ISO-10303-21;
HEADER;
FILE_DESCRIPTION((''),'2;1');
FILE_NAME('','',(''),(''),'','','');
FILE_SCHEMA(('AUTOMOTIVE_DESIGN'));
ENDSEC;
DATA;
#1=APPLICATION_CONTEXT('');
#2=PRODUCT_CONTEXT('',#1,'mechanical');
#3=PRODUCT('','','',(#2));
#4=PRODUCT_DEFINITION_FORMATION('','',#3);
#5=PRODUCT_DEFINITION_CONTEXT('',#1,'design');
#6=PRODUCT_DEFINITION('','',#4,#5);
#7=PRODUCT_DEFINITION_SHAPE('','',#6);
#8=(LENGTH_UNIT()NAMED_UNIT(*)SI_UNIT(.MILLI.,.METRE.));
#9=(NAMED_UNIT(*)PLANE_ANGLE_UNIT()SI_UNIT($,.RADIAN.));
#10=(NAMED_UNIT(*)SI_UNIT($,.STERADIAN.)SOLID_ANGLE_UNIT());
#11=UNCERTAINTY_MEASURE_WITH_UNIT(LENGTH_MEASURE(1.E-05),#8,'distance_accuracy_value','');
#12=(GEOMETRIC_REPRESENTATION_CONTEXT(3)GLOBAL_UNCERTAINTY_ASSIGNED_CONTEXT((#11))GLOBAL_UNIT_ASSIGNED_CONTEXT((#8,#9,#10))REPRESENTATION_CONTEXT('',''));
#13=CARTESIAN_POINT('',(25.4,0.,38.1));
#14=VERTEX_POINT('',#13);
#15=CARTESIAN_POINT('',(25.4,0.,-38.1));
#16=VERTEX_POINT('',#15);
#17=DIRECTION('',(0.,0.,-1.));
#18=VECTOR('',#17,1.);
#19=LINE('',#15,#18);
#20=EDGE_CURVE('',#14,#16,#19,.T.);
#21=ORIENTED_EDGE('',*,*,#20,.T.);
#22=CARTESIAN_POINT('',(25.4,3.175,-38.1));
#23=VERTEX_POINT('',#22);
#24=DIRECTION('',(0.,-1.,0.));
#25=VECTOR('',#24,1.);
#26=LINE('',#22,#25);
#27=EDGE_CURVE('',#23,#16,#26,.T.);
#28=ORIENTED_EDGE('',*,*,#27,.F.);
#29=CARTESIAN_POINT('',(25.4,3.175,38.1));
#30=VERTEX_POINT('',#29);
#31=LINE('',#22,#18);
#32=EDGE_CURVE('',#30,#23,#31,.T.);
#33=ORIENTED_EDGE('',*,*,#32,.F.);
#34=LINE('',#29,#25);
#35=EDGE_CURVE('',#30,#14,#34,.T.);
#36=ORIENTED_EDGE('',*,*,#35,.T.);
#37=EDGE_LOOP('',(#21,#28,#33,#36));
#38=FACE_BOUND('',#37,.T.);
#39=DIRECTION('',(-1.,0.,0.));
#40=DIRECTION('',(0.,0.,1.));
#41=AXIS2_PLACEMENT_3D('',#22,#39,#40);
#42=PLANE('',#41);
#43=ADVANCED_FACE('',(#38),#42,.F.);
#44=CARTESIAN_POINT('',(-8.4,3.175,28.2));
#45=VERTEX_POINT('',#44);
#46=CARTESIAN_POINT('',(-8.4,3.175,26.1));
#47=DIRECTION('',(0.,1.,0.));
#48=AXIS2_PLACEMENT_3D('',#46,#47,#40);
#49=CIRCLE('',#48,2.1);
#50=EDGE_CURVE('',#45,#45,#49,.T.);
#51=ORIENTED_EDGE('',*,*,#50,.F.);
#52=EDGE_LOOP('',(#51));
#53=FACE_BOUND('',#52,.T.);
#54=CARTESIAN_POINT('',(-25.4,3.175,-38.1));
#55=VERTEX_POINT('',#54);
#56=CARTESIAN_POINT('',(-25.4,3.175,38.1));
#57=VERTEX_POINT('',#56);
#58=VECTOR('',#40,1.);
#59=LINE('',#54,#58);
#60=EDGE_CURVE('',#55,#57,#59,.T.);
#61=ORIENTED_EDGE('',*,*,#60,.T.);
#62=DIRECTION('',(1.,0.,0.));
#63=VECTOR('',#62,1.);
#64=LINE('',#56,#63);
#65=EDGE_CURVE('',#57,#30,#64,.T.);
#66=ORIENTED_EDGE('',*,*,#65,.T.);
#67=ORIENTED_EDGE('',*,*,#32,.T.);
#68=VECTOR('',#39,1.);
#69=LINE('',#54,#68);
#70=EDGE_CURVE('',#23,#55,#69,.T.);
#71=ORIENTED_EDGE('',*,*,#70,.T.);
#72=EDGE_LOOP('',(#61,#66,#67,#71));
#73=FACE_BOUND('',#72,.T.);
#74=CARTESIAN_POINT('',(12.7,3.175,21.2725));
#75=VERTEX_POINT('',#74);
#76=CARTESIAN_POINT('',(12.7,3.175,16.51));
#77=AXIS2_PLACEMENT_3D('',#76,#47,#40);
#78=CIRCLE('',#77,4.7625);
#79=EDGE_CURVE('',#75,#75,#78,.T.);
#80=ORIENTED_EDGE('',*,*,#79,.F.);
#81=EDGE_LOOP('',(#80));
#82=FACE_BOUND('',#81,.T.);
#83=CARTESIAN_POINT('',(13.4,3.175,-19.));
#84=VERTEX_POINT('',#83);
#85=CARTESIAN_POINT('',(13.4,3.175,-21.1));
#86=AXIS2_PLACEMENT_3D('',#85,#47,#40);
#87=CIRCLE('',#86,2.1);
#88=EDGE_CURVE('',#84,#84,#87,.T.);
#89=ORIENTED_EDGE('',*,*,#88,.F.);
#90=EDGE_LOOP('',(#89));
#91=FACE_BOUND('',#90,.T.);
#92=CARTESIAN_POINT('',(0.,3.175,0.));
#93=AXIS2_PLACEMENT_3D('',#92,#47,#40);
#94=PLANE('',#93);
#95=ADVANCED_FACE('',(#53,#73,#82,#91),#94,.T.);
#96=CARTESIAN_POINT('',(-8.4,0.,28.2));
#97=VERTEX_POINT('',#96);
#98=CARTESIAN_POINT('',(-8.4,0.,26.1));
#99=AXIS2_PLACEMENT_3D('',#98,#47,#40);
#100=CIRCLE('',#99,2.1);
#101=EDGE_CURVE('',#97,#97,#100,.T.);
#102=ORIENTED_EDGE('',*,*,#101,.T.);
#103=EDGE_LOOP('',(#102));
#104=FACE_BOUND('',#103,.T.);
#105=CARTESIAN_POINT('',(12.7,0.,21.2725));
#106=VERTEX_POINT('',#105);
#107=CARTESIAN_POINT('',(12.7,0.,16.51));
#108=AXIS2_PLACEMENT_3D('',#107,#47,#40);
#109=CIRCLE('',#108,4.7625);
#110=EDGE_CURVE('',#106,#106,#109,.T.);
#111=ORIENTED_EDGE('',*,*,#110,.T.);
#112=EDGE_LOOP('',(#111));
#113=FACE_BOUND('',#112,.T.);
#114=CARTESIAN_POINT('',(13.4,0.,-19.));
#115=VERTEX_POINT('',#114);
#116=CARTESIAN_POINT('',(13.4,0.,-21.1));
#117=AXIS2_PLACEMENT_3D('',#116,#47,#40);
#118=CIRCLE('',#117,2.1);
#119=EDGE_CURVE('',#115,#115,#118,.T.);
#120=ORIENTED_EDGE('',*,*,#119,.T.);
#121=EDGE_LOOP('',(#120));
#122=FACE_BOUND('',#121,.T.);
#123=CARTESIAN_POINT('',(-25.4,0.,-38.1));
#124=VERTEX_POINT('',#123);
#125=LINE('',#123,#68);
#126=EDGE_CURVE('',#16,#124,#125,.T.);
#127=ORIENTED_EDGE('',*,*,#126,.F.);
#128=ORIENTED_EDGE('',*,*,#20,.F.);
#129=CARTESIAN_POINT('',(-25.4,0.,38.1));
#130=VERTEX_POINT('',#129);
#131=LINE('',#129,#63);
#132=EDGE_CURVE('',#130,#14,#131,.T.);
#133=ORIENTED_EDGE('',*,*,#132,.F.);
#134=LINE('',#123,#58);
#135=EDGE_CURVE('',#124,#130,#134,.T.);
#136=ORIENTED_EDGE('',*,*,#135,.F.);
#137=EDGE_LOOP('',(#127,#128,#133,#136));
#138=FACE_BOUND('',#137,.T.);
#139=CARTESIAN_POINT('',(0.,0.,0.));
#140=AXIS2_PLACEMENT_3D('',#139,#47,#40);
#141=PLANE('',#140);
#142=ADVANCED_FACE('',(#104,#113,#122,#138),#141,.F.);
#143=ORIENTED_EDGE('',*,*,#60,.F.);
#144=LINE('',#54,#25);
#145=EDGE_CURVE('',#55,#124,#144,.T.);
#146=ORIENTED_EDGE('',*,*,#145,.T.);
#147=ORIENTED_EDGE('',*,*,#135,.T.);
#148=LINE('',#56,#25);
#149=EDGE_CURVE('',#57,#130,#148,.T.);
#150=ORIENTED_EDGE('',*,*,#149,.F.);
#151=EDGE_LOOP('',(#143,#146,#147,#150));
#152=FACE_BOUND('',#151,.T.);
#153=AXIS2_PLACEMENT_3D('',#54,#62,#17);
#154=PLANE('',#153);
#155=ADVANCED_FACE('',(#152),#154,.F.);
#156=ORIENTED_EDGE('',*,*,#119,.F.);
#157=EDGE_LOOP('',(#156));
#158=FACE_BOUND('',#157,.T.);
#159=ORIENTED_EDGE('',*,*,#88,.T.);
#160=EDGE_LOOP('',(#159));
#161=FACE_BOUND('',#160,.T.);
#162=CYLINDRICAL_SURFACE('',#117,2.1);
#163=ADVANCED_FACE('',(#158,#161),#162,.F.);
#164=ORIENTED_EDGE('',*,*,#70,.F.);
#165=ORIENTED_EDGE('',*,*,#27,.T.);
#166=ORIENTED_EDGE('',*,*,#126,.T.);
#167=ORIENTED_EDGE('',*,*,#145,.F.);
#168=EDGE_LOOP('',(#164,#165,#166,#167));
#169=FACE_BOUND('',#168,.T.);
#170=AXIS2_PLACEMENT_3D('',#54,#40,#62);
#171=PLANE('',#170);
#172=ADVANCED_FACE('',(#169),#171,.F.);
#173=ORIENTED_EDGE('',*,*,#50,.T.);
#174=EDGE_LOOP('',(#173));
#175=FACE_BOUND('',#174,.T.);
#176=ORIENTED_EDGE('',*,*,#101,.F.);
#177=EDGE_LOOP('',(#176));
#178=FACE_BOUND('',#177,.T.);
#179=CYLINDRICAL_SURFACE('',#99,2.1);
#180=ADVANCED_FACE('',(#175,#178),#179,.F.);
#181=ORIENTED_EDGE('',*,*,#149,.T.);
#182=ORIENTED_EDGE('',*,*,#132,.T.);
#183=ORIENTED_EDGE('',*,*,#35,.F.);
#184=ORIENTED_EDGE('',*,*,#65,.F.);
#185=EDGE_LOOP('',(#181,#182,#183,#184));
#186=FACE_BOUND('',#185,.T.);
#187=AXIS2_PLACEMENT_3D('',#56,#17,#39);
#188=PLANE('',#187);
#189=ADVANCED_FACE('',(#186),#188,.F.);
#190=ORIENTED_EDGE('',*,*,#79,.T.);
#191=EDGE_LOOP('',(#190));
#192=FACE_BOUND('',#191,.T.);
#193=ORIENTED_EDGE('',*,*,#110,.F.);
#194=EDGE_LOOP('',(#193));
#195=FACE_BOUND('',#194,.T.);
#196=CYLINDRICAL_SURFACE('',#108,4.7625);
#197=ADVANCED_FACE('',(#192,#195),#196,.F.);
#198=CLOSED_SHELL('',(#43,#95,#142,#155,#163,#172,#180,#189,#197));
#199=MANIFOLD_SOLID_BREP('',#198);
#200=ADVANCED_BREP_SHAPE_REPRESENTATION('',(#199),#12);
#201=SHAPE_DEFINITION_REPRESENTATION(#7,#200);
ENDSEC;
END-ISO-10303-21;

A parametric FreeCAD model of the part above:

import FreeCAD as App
import Part
import Sketcher
from FreeCAD import Vector
Q = App.Units.Quantity

doc = App.newDocument("Part")
body = doc.addObject("PartDesign::Body", "Body")

# Sketch on XZ plane
sketch1 = doc.addObject("Sketcher::SketchObject", "Sketch")
body.addObject(sketch1)
sketch1.AttachmentSupport = (doc.XZ_Plane, [""])
sketch1.MapMode = "FlatFace"
sketch1.addGeometry([
    Part.LineSegment(Vector(-25, -38, 0), Vector(-25, 38, 0)),
    Part.LineSegment(Vector(-25, 38, 0), Vector(25, 38, 0)),
    Part.LineSegment(Vector(25, 38, 0), Vector(25, -38, 0)),
    Part.LineSegment(Vector(25, -38, 0), Vector(-25, -38, 0)),
], False)
sketch1.addConstraint([
    Sketcher.Constraint("Coincident", 0, 2, 1, 1),
    Sketcher.Constraint("Coincident", 1, 2, 2, 1),
    Sketcher.Constraint("Coincident", 2, 2, 3, 1),
    Sketcher.Constraint("Coincident", 3, 2, 0, 1),
    Sketcher.Constraint("Vertical", 0),
    Sketcher.Constraint("Horizontal", 1),
    Sketcher.Constraint("Vertical", 2),
    Sketcher.Constraint("Horizontal", 3),
    Sketcher.Constraint("Symmetric", 0, 2, 2, 2, -1, 1),
    Sketcher.Constraint("DistanceX", 1, 1, 1, 2, Q("2 in")),
    Sketcher.Constraint("DistanceY", 0, 1, 0, 2, Q("3 in")),
])
pad1 = doc.addObject("PartDesign::Pad", "Pad")
body.addObject(pad1)
pad1.Profile = sketch1
pad1.Length = Q("0.125 in")
pad1.Reversed = True

# Sketch on XZ plane
sketch2 = doc.addObject("Sketcher::SketchObject", "Sketch001")
body.addObject(sketch2)
sketch2.AttachmentSupport = (doc.XZ_Plane, [""])
sketch2.MapMode = "FlatFace"
sketch2.AttachmentOffset = App.Placement(Vector(0, 0, -0.125 * 25.4), App.Rotation())
sketch2.addGeometry(Part.Circle(Vector(12.7, 16.5, 0), Vector(0, 0, 1), 4.8), False)
sketch2.addConstraint([
    Sketcher.Constraint("Diameter", 0, Q("0.375 in")),
    Sketcher.Constraint("DistanceX", -1, 1, 0, 3, Q("0.5 in")),
    Sketcher.Constraint("DistanceY", -1, 1, 0, 3, Q("0.65 in")),
])
pocket1 = doc.addObject("PartDesign::Pocket", "Pocket")
body.addObject(pocket1)
pocket1.Profile = sketch2
pocket1.Type = "ThroughAll"
pocket1.Reversed = True

# Sketch on XZ plane
sketch3 = doc.addObject("Sketcher::SketchObject", "Sketch002")
body.addObject(sketch3)
sketch3.AttachmentSupport = (doc.XZ_Plane, [""])
sketch3.MapMode = "FlatFace"
sketch3.AttachmentOffset = App.Placement(Vector(0, 0, -0.125 * 25.4), App.Rotation())
sketch3.addGeometry([
    Part.Circle(Vector(13.4, -21.1, 0), Vector(0, 0, 1), 2.1),
    Part.Circle(Vector(-8.4, 26.1, 0), Vector(0, 0, 1), 2.1),
], False)
sketch3.addConstraint([
    Sketcher.Constraint("Equal", 0, 1),
    Sketcher.Constraint("Diameter", 0, 4.2),
    Sketcher.Constraint("DistanceX", -1, 1, 0, 3, 13.4),
    Sketcher.Constraint("DistanceY", 0, 3, -1, 1, 21.1),
    Sketcher.Constraint("DistanceX", 1, 3, -1, 1, 8.4),
    Sketcher.Constraint("DistanceY", -1, 1, 1, 3, 26.1),
])
pocket2 = doc.addObject("PartDesign::Pocket", "Pocket001")
body.addObject(pocket2)
pocket2.Profile = sketch3
pocket2.Type = "ThroughAll"
pocket2.Reversed = True

doc.recompute()
